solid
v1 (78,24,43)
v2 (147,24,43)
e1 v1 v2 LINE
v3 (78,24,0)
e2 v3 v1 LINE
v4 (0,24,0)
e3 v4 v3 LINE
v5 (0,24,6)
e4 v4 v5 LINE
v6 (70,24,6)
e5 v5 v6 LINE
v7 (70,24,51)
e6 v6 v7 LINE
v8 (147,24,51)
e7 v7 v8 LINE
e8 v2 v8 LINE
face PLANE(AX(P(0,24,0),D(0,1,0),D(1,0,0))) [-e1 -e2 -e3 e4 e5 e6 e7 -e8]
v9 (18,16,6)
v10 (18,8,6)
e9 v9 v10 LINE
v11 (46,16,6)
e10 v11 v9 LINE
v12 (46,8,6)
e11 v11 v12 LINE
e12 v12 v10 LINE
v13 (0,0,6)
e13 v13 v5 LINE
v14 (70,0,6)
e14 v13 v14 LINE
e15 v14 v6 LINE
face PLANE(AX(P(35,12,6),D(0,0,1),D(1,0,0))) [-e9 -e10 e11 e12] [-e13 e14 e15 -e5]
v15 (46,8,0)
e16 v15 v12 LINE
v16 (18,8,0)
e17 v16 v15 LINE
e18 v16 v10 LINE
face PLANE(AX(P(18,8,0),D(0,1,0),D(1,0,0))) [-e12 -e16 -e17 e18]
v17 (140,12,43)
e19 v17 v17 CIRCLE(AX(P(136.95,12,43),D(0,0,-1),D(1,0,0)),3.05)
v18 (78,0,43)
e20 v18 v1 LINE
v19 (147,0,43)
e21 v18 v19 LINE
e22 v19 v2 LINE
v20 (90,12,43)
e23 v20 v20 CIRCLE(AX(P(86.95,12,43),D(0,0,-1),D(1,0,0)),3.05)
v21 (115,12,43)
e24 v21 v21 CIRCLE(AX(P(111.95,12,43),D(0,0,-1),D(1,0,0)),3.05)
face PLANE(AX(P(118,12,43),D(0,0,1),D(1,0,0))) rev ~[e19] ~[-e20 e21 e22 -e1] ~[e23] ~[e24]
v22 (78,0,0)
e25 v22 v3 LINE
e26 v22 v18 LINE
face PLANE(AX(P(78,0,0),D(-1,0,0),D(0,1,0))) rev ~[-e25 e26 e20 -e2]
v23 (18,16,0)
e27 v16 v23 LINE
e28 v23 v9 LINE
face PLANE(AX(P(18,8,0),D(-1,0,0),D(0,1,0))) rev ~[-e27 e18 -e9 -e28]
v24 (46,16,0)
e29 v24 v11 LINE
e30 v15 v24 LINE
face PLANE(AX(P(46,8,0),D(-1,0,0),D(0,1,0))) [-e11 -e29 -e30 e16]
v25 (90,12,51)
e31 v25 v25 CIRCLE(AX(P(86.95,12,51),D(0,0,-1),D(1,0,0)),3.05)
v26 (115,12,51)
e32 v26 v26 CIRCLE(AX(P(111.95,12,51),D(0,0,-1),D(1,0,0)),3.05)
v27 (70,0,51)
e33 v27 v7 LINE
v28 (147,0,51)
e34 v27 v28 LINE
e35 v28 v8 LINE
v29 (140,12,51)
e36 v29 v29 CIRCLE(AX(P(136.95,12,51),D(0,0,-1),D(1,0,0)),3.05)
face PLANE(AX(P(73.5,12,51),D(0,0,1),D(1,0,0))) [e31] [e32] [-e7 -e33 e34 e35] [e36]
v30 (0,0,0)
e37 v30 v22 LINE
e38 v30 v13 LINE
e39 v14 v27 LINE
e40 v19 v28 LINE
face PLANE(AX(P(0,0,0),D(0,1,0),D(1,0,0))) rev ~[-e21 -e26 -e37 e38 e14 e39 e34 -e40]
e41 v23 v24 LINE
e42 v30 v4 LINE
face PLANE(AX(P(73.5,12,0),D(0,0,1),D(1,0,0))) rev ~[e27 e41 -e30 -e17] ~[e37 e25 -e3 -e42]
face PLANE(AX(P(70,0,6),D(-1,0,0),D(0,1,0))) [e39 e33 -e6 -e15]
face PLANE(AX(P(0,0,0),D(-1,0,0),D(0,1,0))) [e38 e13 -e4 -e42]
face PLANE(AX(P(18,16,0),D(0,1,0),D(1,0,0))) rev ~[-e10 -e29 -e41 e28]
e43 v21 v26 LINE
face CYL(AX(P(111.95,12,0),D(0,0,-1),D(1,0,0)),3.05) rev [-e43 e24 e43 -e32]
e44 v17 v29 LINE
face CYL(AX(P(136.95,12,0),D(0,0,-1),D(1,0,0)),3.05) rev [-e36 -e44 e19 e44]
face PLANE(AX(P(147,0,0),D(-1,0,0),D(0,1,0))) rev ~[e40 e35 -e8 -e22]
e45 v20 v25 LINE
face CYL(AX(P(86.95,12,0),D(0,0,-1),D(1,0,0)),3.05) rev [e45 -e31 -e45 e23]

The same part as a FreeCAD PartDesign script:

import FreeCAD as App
import Part
import Sketcher

V = App.Vector

doc = App.newDocument("Part")
body = doc.addObject("PartDesign::Body", "Body")

sketch1 = body.newObject("Sketcher::SketchObject", "Sketch")
sketch1.AttachmentSupport = (doc.getObject("XY_Plane"), [""])
sketch1.MapMode = "FlatFace"
sketch1.addGeometry(Part.LineSegment(V(18, 16, 0), V(18, 8, 0)), False)
sketch1.addGeometry(Part.LineSegment(V(18, 8, 0), V(46, 8, 0)), False)
sketch1.addGeometry(Part.LineSegment(V(46, 8, 0), V(46, 16, 0)), False)
sketch1.addGeometry(Part.LineSegment(V(46, 16, 0), V(18, 16, 0)), False)
sketch1.addConstraint(Sketcher.Constraint("Coincident", 0, 2, 1, 1))
sketch1.addConstraint(Sketcher.Constraint("Coincident", 1, 2, 2, 1))
sketch1.addConstraint(Sketcher.Constraint("Coincident", 2, 2, 3, 1))
sketch1.addConstraint(Sketcher.Constraint("Coincident", 3, 2, 0, 1))
sketch1.addConstraint(Sketcher.Constraint("Vertical", 0))
sketch1.addConstraint(Sketcher.Constraint("Horizontal", 1))
sketch1.addConstraint(Sketcher.Constraint("Vertical", 2))
sketch1.addConstraint(Sketcher.Constraint("Horizontal", 3))
sketch1.addConstraint(Sketcher.Constraint("DistanceX", 1, 1, 1, 2, 28.0))
sketch1.addConstraint(Sketcher.Constraint("DistanceY", 0, 2, 0, 1, 8.0))
sketch1.addConstraint(Sketcher.Constraint("DistanceX", -1, 1, 0, 2, 18.0))
sketch1.addConstraint(Sketcher.Constraint("DistanceY", -1, 1, 0, 2, 8.0))
pad1 = body.newObject("PartDesign::Pad", "Pad")
pad1.Profile = sketch1
pad1.Length = 10
body2 = doc.addObject("PartDesign::Body", "Body001")

sketch2 = body2.newObject("Sketcher::SketchObject", "Sketch001")
sketch2.AttachmentSupport = (doc.getObject("XY_Plane001"), [""])
sketch2.MapMode = "FlatFace"
sketch2.addGeometry(Part.Circle(V(136.9, 12, 0), V(0, 0, 1), 3), False)
sketch2.addConstraint(Sketcher.Constraint("Diameter", 0, 6.1))
sketch2.addConstraint(Sketcher.Constraint("DistanceY", -1, 1, 0, 3, 12.0))
sketch2.addConstraint(Sketcher.Constraint("DistanceX", -1, 1, 0, 3, 136.95))
pad2 = body2.newObject("PartDesign::Pad", "Pad001")
pad2.Profile = sketch2
pad2.Length = 80
body3 = doc.addObject("PartDesign::Body", "Body002")

sketch3 = body3.newObject("Sketcher::SketchObject", "Sketch002")
sketch3.AttachmentSupport = (doc.getObject("XY_Plane002"), [""])
sketch3.MapMode = "FlatFace"
sketch3.addGeometry(Part.Circle(V(112, 12, 0), V(0, 0, 1), 3), False)
sketch3.addConstraint(Sketcher.Constraint("Diameter", 0, 6.1))
sketch3.addConstraint(Sketcher.Constraint("DistanceY", -1, 1, 0, 3, 12.0))
sketch3.addConstraint(Sketcher.Constraint("DistanceX", -1, 1, 0, 3, 111.95))
pad3 = body3.newObject("PartDesign::Pad", "Pad002")
pad3.Profile = sketch3
pad3.Length = 80
body4 = doc.addObject("PartDesign::Body", "Body003")

sketch4 = body4.newObject("Sketcher::SketchObject", "Sketch003")
sketch4.AttachmentSupport = (doc.getObject("XY_Plane003"), [""])
sketch4.MapMode = "FlatFace"
sketch4.addGeometry(Part.Circle(V(87, 12, 0), V(0, 0, 1), 3), False)
sketch4.addConstraint(Sketcher.Constraint("Diameter", 0, 6.1))
sketch4.addConstraint(Sketcher.Constraint("DistanceY", -1, 1, 0, 3, 12.0))
sketch4.addConstraint(Sketcher.Constraint("DistanceX", -1, 1, 0, 3, 86.95))
pad4 = body4.newObject("PartDesign::Pad", "Pad003")
pad4.Profile = sketch4
pad4.Length = 80
body5 = doc.addObject("PartDesign::Body", "Body004")

sketch5 = body5.newObject("Sketcher::SketchObject", "Sketch004")
sketch5.AttachmentSupport = (doc.getObject("XY_Plane004"), [""])
sketch5.MapMode = "FlatFace"
sketch5.AttachmentOffset = App.Placement(V(0, 0, 6), App.Rotation())
sketch5.addGeometry(Part.LineSegment(V(0, 24, 0), V(0, 0, 0)), False)
sketch5.addGeometry(Part.LineSegment(V(0, 0, 0), V(70, 0, 0)), False)
sketch5.addGeometry(Part.LineSegment(V(70, 0, 0), V(70, 24, 0)), False)
sketch5.addGeometry(Part.LineSegment(V(70, 24, 0), V(0, 24, 0)), False)
sketch5.addConstraint(Sketcher.Constraint("Coincident", 0, 2, 1, 1))
sketch5.addConstraint(Sketcher.Constraint("Coincident", 1, 2, 2, 1))
sketch5.addConstraint(Sketcher.Constraint("Coincident", 2, 2, 3, 1))
sketch5.addConstraint(Sketcher.Constraint("Coincident", 3, 2, 0, 1))
sketch5.addConstraint(Sketcher.Constraint("Vertical", 0))
sketch5.addConstraint(Sketcher.Constraint("Horizontal", 1))
sketch5.addConstraint(Sketcher.Constraint("Vertical", 2))
sketch5.addConstraint(Sketcher.Constraint("Horizontal", 3))
sketch5.addConstraint(Sketcher.Constraint("Coincident", 0, 2, -1, 1))
sketch5.addConstraint(Sketcher.Constraint("DistanceX", 1, 1, 1, 2, 70.0))
sketch5.addConstraint(Sketcher.Constraint("DistanceY", 0, 2, 0, 1, 24.0))
pad5 = body5.newObject("PartDesign::Pad", "Pad004")
pad5.Profile = sketch5
pad5.Length = 45
body6 = doc.addObject("PartDesign::Body", "Body005")

sketch6 = body6.newObject("Sketcher::SketchObject", "Sketch005")
sketch6.AttachmentSupport = (doc.getObject("XY_Plane005"), [""])
sketch6.MapMode = "FlatFace"
sketch6.addGeometry(Part.LineSegment(V(78, 24, 0), V(78, 0, 0)), False)
sketch6.addGeometry(Part.LineSegment(V(78, 0, 0), V(158, 0, 0)), False)
sketch6.addGeometry(Part.LineSegment(V(158, 0, 0), V(158, 24, 0)), False)
sketch6.addGeometry(Part.LineSegment(V(158, 24, 0), V(78, 24, 0)), False)
sketch6.addConstraint(Sketcher.Constraint("Coincident", 0, 2, 1, 1))
sketch6.addConstraint(Sketcher.Constraint("Coincident", 1, 2, 2, 1))
sketch6.addConstraint(Sketcher.Constraint("Coincident", 2, 2, 3, 1))
sketch6.addConstraint(Sketcher.Constraint("Coincident", 3, 2, 0, 1))
sketch6.addConstraint(Sketcher.Constraint("Vertical", 0))
sketch6.addConstraint(Sketcher.Constraint("Horizontal", 1))
sketch6.addConstraint(Sketcher.Constraint("Vertical", 2))
sketch6.addConstraint(Sketcher.Constraint("Horizontal", 3))
sketch6.addConstraint(Sketcher.Constraint("PointOnObject", 0, 2, -1))
sketch6.addConstraint(Sketcher.Constraint("DistanceX", 1, 1, 1, 2, 80.0))
sketch6.addConstraint(Sketcher.Constraint("DistanceY", 0, 2, 0, 1, 24.0))
sketch6.addConstraint(Sketcher.Constraint("DistanceX", -1, 1, 0, 2, 78.0))
pad6 = body6.newObject("PartDesign::Pad", "Pad005")
pad6.Profile = sketch6
pad6.Length = 43
body7 = doc.addObject("PartDesign::Body", "Body006")

sketch7 = body7.newObject("Sketcher::SketchObject", "Sketch006")
sketch7.AttachmentSupport = (doc.getObject("XY_Plane006"), [""])
sketch7.MapMode = "FlatFace"
sketch7.addGeometry(Part.LineSegment(V(0, 24, 0), V(0, 0, 0)), False)
sketch7.addGeometry(Part.LineSegment(V(0, 0, 0), V(147, 0, 0)), False)
sketch7.addGeometry(Part.LineSegment(V(147, 0, 0), V(147, 24, 0)), False)
sketch7.addGeometry(Part.LineSegment(V(147, 24, 0), V(0, 24, 0)), False)
sketch7.addConstraint(Sketcher.Constraint("Coincident", 0, 2, 1, 1))
sketch7.addConstraint(Sketcher.Constraint("Coincident", 1, 2, 2, 1))
sketch7.addConstraint(Sketcher.Constraint("Coincident", 2, 2, 3, 1))
sketch7.addConstraint(Sketcher.Constraint("Coincident", 3, 2, 0, 1))
sketch7.addConstraint(Sketcher.Constraint("Vertical", 0))
sketch7.addConstraint(Sketcher.Constraint("Horizontal", 1))
sketch7.addConstraint(Sketcher.Constraint("Vertical", 2))
sketch7.addConstraint(Sketcher.Constraint("Horizontal", 3))
sketch7.addConstraint(Sketcher.Constraint("Coincident", 0, 2, -1, 1))
sketch7.addConstraint(Sketcher.Constraint("DistanceX", 1, 1, 1, 2, 147.0))
sketch7.addConstraint(Sketcher.Constraint("DistanceY", 0, 2, 0, 1, 24.0))
pad7 = body7.newObject("PartDesign::Pad", "Pad006")
pad7.Profile = sketch7
pad7.Length = 51
doc.recompute()

boolean = body7.newObject("PartDesign::Boolean", "Boolean")
boolean.Type = "Cut"
boolean.addObjects([body6])
doc.recompute()

boolean2 = body7.newObject("PartDesign::Boolean", "Boolean001")
boolean2.Type = "Cut"
boolean2.addObjects([body5])
doc.recompute()

boolean3 = body7.newObject("PartDesign::Boolean", "Boolean002")
boolean3.Type = "Cut"
boolean3.addObjects([body4])
doc.recompute()

boolean4 = body7.newObject("PartDesign::Boolean", "Boolean003")
boolean4.Type = "Cut"
boolean4.addObjects([body3])
doc.recompute()

boolean5 = body7.newObject("PartDesign::Boolean", "Boolean004")
boolean5.Type = "Cut"
boolean5.addObjects([body2])
doc.recompute()

boolean6 = body7.newObject("PartDesign::Boolean", "Boolean005")
boolean6.Type = "Cut"
boolean6.addObjects([body])

doc.recompute()
